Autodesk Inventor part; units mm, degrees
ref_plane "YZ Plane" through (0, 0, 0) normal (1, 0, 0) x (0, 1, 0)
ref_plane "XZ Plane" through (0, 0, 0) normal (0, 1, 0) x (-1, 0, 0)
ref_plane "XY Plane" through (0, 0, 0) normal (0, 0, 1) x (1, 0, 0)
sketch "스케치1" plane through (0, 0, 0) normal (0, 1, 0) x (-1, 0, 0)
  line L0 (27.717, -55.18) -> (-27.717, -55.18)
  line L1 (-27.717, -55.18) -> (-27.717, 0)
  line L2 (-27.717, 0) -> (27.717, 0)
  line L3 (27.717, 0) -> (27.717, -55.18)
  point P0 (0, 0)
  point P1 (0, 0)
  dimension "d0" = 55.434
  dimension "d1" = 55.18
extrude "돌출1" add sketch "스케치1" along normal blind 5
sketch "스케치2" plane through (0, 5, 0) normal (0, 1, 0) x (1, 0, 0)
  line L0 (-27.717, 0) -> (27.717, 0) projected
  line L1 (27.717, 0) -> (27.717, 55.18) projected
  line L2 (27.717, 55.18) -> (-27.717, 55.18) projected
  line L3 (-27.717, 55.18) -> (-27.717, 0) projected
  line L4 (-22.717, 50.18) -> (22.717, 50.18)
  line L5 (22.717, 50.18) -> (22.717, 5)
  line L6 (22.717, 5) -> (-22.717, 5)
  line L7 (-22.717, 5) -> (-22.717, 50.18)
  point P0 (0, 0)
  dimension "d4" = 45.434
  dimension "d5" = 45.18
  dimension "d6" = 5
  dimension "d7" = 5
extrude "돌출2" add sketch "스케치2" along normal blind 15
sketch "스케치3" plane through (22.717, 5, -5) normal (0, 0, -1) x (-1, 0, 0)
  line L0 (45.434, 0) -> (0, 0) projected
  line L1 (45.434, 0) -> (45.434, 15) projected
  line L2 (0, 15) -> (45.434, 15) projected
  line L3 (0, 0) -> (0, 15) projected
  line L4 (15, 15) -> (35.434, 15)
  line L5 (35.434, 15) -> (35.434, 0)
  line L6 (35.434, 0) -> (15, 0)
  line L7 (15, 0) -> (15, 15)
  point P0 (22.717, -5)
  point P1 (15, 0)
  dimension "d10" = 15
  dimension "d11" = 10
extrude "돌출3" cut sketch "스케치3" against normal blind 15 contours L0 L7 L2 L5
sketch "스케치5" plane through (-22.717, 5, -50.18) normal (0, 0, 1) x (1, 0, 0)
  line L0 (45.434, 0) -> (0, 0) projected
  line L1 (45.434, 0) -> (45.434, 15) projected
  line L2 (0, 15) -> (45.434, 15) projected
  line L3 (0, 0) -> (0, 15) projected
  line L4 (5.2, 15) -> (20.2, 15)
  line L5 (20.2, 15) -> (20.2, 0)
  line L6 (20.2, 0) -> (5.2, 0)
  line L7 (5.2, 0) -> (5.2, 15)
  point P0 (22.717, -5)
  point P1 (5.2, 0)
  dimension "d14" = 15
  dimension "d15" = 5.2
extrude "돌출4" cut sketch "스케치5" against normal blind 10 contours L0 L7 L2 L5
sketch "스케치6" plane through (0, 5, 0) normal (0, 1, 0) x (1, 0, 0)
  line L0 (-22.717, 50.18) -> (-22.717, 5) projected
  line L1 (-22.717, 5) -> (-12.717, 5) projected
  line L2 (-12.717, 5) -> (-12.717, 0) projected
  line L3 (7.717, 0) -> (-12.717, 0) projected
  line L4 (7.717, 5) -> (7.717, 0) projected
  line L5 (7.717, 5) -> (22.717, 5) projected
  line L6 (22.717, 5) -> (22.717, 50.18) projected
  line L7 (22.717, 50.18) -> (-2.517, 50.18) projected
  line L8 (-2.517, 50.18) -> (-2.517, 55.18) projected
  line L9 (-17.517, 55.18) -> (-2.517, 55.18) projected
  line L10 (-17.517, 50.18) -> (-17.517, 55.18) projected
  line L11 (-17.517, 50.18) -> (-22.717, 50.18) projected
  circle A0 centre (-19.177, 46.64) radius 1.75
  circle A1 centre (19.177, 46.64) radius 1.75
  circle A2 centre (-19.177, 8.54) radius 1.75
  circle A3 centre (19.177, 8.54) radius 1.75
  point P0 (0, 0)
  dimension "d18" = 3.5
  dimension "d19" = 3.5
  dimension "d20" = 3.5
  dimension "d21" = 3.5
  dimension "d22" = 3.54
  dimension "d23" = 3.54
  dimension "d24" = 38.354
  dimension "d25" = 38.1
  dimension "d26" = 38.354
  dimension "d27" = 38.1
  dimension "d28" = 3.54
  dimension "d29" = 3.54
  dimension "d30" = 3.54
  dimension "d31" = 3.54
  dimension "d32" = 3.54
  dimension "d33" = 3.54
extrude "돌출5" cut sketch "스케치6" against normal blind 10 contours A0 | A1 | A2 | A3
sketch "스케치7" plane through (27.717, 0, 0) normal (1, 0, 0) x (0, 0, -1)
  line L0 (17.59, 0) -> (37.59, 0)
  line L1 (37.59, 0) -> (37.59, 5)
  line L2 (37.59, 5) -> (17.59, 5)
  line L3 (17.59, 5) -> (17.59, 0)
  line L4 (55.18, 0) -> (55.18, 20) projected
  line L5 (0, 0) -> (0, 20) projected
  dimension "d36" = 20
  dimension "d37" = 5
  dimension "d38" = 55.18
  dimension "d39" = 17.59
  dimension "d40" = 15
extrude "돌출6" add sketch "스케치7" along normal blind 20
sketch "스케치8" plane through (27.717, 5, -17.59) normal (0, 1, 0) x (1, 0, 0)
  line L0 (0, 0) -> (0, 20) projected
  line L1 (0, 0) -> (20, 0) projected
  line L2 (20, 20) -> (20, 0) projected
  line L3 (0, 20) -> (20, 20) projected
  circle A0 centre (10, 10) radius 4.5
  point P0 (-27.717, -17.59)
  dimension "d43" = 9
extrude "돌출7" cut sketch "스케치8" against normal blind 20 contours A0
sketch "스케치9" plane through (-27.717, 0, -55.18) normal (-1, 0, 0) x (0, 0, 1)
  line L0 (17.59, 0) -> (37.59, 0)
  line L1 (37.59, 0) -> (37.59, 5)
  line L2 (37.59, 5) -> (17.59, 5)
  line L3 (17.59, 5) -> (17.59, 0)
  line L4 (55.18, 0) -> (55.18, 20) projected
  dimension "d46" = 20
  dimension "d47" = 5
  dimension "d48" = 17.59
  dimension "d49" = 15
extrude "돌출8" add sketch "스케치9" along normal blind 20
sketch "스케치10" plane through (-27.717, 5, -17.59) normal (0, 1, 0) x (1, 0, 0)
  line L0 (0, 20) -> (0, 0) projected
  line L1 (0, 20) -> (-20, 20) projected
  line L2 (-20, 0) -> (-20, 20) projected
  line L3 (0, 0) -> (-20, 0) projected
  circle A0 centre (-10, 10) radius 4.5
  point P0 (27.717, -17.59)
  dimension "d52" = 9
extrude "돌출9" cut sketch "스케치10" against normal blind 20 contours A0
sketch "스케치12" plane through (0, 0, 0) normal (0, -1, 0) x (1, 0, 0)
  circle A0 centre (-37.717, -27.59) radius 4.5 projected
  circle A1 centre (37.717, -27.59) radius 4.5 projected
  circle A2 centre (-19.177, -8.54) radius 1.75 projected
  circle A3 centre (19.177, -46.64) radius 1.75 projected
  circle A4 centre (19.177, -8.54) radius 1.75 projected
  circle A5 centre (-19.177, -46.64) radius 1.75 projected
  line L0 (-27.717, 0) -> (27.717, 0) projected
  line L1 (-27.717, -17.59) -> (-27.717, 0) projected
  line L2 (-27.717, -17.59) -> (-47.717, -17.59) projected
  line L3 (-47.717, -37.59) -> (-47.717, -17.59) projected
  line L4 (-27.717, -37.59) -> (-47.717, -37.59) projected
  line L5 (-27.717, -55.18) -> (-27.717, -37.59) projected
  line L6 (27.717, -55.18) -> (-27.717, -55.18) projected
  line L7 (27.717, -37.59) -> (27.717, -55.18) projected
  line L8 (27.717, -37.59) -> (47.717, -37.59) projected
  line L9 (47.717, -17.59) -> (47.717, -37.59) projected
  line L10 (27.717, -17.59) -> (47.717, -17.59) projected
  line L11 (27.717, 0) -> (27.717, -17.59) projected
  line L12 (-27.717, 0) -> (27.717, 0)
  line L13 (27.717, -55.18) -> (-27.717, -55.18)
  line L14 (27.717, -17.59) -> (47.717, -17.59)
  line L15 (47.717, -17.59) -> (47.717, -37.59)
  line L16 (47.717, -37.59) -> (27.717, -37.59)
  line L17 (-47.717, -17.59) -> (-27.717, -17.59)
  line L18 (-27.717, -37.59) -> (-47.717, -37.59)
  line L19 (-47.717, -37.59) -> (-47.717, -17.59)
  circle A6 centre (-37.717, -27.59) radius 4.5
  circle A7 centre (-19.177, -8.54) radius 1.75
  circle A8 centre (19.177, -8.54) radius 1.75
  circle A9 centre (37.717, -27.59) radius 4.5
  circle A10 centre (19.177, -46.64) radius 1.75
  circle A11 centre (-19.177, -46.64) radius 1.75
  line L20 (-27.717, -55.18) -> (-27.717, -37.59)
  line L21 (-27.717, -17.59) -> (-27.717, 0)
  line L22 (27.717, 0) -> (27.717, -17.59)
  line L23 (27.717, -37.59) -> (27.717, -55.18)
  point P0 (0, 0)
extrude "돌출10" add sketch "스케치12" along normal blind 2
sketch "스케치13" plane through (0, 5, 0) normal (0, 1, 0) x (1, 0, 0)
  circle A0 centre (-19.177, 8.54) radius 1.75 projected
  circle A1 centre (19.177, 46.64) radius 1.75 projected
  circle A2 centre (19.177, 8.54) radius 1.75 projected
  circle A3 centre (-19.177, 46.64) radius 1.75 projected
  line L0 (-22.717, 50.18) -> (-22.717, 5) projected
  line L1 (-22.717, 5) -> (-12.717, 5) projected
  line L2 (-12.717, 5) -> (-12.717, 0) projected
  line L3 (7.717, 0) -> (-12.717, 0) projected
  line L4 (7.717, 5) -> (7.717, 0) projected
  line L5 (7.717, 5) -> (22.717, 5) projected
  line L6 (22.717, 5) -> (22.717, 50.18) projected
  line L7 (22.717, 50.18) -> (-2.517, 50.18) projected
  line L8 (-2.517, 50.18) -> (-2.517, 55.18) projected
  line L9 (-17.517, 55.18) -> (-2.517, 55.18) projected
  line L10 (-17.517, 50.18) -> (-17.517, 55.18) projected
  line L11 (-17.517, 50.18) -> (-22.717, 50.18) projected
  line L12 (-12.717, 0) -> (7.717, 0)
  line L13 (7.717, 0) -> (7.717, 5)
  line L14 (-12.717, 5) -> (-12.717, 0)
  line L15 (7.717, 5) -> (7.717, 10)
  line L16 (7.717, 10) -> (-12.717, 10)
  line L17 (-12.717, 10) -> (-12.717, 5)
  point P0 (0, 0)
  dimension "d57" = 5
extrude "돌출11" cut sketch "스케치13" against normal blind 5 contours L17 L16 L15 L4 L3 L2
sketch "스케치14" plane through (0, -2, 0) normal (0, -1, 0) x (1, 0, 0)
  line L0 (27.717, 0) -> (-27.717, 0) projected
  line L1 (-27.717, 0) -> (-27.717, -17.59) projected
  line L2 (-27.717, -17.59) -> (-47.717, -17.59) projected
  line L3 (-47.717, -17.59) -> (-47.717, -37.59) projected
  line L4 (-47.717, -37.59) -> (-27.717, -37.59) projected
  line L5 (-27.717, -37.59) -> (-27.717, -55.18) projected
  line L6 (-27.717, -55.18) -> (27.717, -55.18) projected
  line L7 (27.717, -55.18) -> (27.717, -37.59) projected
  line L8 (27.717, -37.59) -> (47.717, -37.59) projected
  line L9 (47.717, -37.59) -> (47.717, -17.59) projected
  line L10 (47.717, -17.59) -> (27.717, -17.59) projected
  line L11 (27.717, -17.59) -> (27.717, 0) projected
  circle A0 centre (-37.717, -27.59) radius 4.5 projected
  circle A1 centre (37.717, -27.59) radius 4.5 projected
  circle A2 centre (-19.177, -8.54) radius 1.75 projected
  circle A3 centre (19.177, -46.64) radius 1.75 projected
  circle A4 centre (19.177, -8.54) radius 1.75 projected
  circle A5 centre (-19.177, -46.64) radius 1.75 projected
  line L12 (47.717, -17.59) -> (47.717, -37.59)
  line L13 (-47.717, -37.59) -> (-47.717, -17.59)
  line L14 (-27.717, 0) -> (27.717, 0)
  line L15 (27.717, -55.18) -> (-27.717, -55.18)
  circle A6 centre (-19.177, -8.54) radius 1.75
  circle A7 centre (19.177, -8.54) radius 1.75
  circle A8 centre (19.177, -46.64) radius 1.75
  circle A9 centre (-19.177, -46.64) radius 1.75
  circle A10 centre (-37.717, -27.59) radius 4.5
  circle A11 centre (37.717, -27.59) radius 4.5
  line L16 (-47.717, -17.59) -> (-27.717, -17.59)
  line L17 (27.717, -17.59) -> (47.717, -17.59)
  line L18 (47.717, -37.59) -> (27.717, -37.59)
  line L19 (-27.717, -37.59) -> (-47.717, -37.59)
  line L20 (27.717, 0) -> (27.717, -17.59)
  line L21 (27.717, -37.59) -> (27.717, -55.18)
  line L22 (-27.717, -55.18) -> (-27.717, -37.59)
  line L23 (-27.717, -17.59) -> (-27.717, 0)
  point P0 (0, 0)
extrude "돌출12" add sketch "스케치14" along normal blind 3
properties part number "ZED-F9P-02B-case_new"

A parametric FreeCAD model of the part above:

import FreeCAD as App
import Part
import Sketcher

V = App.Vector
Q = App.Units.Quantity

doc = App.newDocument("Part")
body = doc.addObject("PartDesign::Body", "Body")

# Sketch on XZ plane
sketch1 = body.newObject("Sketcher::SketchObject", "Sketch")
sketch1.AttachmentSupport = (doc.getObject("XZ_Plane"), [""])
sketch1.MapMode = "FlatFace"
sketch1.addGeometry([
    Part.LineSegment(V(27.717, -55.18, 0), V(-27.717, -55.18, 0)),
    Part.LineSegment(V(-27.717, -55.18, 0), V(-27.717, 0, 0)),
    Part.LineSegment(V(-27.717, 0, 0), V(27.717, 0, 0)),
    Part.LineSegment(V(27.717, 0, 0), V(27.717, -55.18, 0)),
], False)
sketch1.addConstraint([
    Sketcher.Constraint("Coincident", 0, 2, 1, 1),
    Sketcher.Constraint("Coincident", 1, 2, 2, 1),
    Sketcher.Constraint("Coincident", 2, 2, 3, 1),
    Sketcher.Constraint("Coincident", 3, 2, 0, 1),
    Sketcher.Constraint("Horizontal", 0),
    Sketcher.Constraint("Vertical", 1),
    Sketcher.Constraint("Horizontal", 2),
    Sketcher.Constraint("Vertical", 3),
    Sketcher.Constraint("Symmetric", 1, 2, 2, 2, -1, 1),
    Sketcher.Constraint("DistanceY", 1, 1, 1, 2, Q("55.18 mm")),
    Sketcher.Constraint("DistanceX", 0, 2, 0, 1, Q("55.434 mm")),
])
pad1 = body.newObject("PartDesign::Pad", "Pad")
pad1.Profile = sketch1
pad1.Length = 5
pad1.Reversed = True

# Sketch on XZ plane
sketch2 = body.newObject("Sketcher::SketchObject", "Sketch001")
sketch2.AttachmentSupport = (doc.getObject("XZ_Plane"), [""])
sketch2.MapMode = "FlatFace"
sketch2.AttachmentOffset = App.Placement(V(0, 0, -5), App.Rotation())
sketch2.addGeometry([
    Part.LineSegment(V(-27.717, -55.18, 0), V(-27.717, 0, 0)),  # 0
    Part.LineSegment(V(-27.717, 0, 0), V(27.717, 0, 0)),  # 1
    Part.LineSegment(V(27.717, 0, 0), V(27.717, -55.18, 0)),  # 2
    Part.LineSegment(V(27.717, -55.18, 0), V(-27.717, -55.18, 0)),  # 3
    Part.LineSegment(V(-22.717, -5, 0), V(-22.717, -50.18, 0)),  # 4
    Part.LineSegment(V(-22.717, -50.18, 0), V(22.717, -50.18, 0)),  # 5
    Part.LineSegment(V(22.717, -50.18, 0), V(22.717, -5, 0)),  # 6
    Part.LineSegment(V(22.717, -5, 0), V(-22.717, -5, 0)),  # 7
], False)
sketch2.addConstraint([
    Sketcher.Constraint("Coincident", 0, 2, 1, 1),
    Sketcher.Constraint("Coincident", 1, 2, 2, 1),
    Sketcher.Constraint("Coincident", 2, 2, 3, 1),
    Sketcher.Constraint("Coincident", 3, 2, 0, 1),
    Sketcher.Constraint("Coincident", 4, 2, 5, 1),
    Sketcher.Constraint("Coincident", 5, 2, 6, 1),
    Sketcher.Constraint("Coincident", 6, 2, 7, 1),
    Sketcher.Constraint("Coincident", 7, 2, 4, 1),
    Sketcher.Constraint("Vertical", 0),
    Sketcher.Constraint("Horizontal", 1),
    Sketcher.Constraint("Vertical", 2),
    Sketcher.Constraint("Horizontal", 3),
    Sketcher.Constraint("Vertical", 4),
    Sketcher.Constraint("Horizontal", 5),
    Sketcher.Constraint("Vertical", 6),
    Sketcher.Constraint("Horizontal", 7),
    Sketcher.Constraint("Symmetric", 0, 2, 1, 2, -1, 1),
    Sketcher.Constraint("DistanceY", 6, 2, -1, 1, Q("5 mm")),
    Sketcher.Constraint("DistanceX", 3, 2, 4, 2, Q("5 mm")),
    Sketcher.Constraint("DistanceY", 3, 2, 4, 2, Q("5 mm")),
    Sketcher.Constraint("DistanceX", 5, 2, 2, 2, Q("5 mm")),
    Sketcher.Constraint("DistanceY", 4, 2, 4, 1, Q("45.18 mm")),
    Sketcher.Constraint("DistanceX", 5, 1, 5, 2, Q("45.434 mm")),
])
pad2 = body.newObject("PartDesign::Pad", "Pad001")
pad2.Profile = sketch2
pad2.Length = 15
pad2.Reversed = True

# Sketch on XY plane
sketch3 = body.newObject("Sketcher::SketchObject", "Sketch002")
sketch3.AttachmentSupport = (doc.getObject("XY_Plane"), [""])
sketch3.MapMode = "FlatFace"
sketch3.AttachmentOffset = App.Placement(V(0, 0, -5), App.Rotation())
sketch3.addGeometry([
    Part.LineSegment(V(7.717, 5, 0), V(-12.717, 5, 0)),
    Part.LineSegment(V(-12.717, 5, 0), V(-12.717, 20, 0)),
    Part.LineSegment(V(-12.717, 20, 0), V(7.717, 20, 0)),
    Part.LineSegment(V(7.717, 20, 0), V(7.717, 5, 0)),
], False)
sketch3.addConstraint([
    Sketcher.Constraint("Coincident", 0, 2, 1, 1),
    Sketcher.Constraint("Coincident", 1, 2, 2, 1),
    Sketcher.Constraint("Coincident", 2, 2, 3, 1),
    Sketcher.Constraint("Coincident", 3, 2, 0, 1),
    Sketcher.Constraint("Horizontal", 0),
    Sketcher.Constraint("Vertical", 1),
    Sketcher.Constraint("Horizontal", 2),
    Sketcher.Constraint("Vertical", 3),
    Sketcher.Constraint("DistanceY", 1, 1, 1, 2, Q("15 mm")),
    Sketcher.Constraint("DistanceY", -1, 1, 0, 2, Q("5 mm")),
    Sketcher.Constraint("DistanceX", 0, 2, 0, 1, Q("20.434 mm")),
    Sketcher.Constraint("DistanceX", 0, 2, -1, 1, Q("12.717 mm")),
])
pocket1 = body.newObject("PartDesign::Pocket", "Pocket")
pocket1.Profile = sketch3
pocket1.Length = 15
pocket1.Reversed = True

# Sketch on XY plane
sketch4 = body.newObject("Sketcher::SketchObject", "Sketch003")
sketch4.AttachmentSupport = (doc.getObject("XY_Plane"), [""])
sketch4.MapMode = "FlatFace"
sketch4.AttachmentOffset = App.Placement(V(0, 0, -50.18), App.Rotation())
sketch4.addGeometry([
    Part.LineSegment(V(-17.517, 5, 0), V(-2.517, 5, 0)),
    Part.LineSegment(V(-2.517, 5, 0), V(-2.517, 20, 0)),
    Part.LineSegment(V(-2.517, 20, 0), V(-17.517, 20, 0)),
    Part.LineSegment(V(-17.517, 20, 0), V(-17.517, 5, 0)),
], False)
sketch4.addConstraint([
    Sketcher.Constraint("Coincident", 0, 2, 1, 1),
    Sketcher.Constraint("Coincident", 1, 2, 2, 1),
    Sketcher.Constraint("Coincident", 2, 2, 3, 1),
    Sketcher.Constraint("Coincident", 3, 2, 0, 1),
    Sketcher.Constraint("Horizontal", 0),
    Sketcher.Constraint("Vertical", 1),
    Sketcher.Constraint("Horizontal", 2),
    Sketcher.Constraint("Vertical", 3),
    Sketcher.Constraint("Equal", 2, 1),
    Sketcher.Constraint("DistanceX", 0, 1, 0, 2, Q("15 mm")),
    Sketcher.Constraint("DistanceY", -1, 1, 0, 2, Q("5 mm")),
    Sketcher.Constraint("DistanceX", 0, 2, -1, 1, Q("2.517 mm")),
])
pocket2 = body.newObject("PartDesign::Pocket", "Pocket001")
pocket2.Profile = sketch4
pocket2.Length = 10

# Sketch on XZ plane
sketch5 = body.newObject("Sketcher::SketchObject", "Sketch004")
sketch5.AttachmentSupport = (doc.getObject("XZ_Plane"), [""])
sketch5.MapMode = "FlatFace"
sketch5.AttachmentOffset = App.Placement(V(0, 0, -5), App.Rotation())
sketch5.addGeometry([
    Part.Circle(V(-19.177, -46.64, 0), V(0, 0, 1), 1.75),
    Part.Circle(V(19.177, -46.64, 0), V(0, 0, 1), 1.75),
    Part.Circle(V(-19.177, -8.54, 0), V(0, 0, 1), 1.75),
    Part.Circle(V(19.177, -8.54, 0), V(0, 0, 1), 1.75),
], False)
sketch5.addConstraint([
    Sketcher.Constraint("Equal", 0, 1),
    Sketcher.Constraint("Equal", 1, 2),
    Sketcher.Constraint("Equal", 2, 3),
    Sketcher.Constraint("Symmetric", 0, 3, 1, 3, -2),
    Sketcher.Constraint("Symmetric", 2, 3, 3, 3, -2),
    Sketcher.Constraint("Vertical", 0, 3, 2, 3),
    Sketcher.Constraint("Diameter", 0, Q("3.5 mm")),
    Sketcher.Constraint("DistanceY", 0, 3, 2, 3, Q("38.1 mm")),
    Sketcher.Constraint("DistanceX", 0, 3, 1, 3, Q("38.354 mm")),
    Sketcher.Constraint("DistanceY", 0, 3, -1, 1, Q("46.64 mm")),
])
pocket3 = body.newObject("PartDesign::Pocket", "Pocket002")
pocket3.Profile = sketch5
pocket3.Length = 10
pocket3.Reversed = True

# Sketch on YZ plane
sketch6 = body.newObject("Sketcher::SketchObject", "Sketch005")
sketch6.AttachmentSupport = (doc.getObject("YZ_Plane"), [""])
sketch6.MapMode = "FlatFace"
sketch6.AttachmentOffset = App.Placement(V(0, 0, 27.717), App.Rotation())
sketch6.addGeometry([
    Part.LineSegment(V(5, -17.59, 0), V(0, -17.59, 0)),
    Part.LineSegment(V(0, -17.59, 0), V(0, -37.59, 0)),
    Part.LineSegment(V(0, -37.59, 0), V(5, -37.59, 0)),
    Part.LineSegment(V(5, -37.59, 0), V(5, -17.59, 0)),
], False)
sketch6.addConstraint([
    Sketcher.Constraint("Coincident", 0, 2, 1, 1),
    Sketcher.Constraint("Coincident", 1, 2, 2, 1),
    Sketcher.Constraint("Coincident", 2, 2, 3, 1),
    Sketcher.Constraint("Coincident", 3, 2, 0, 1),
    Sketcher.Constraint("Horizontal", 0),
    Sketcher.Constraint("Vertical", 1),
    Sketcher.Constraint("Horizontal", 2),
    Sketcher.Constraint("Vertical", 3),
    Sketcher.Constraint("PointOnObject", 0, 2, -2),
    Sketcher.Constraint("DistanceX", 0, 2, 0, 1, Q("5 mm")),
    Sketcher.Constraint("DistanceY", 1, 2, 1, 1, Q("20 mm")),
    Sketcher.Constraint("DistanceY", 0, 2, -1, 1, Q("17.59 mm")),
])
pad3 = body.newObject("PartDesign::Pad", "Pad002")
pad3.Profile = sketch6
pad3.Length = 20

# Sketch on XZ plane
sketch7 = body.newObject("Sketcher::SketchObject", "Sketch006")
sketch7.AttachmentSupport = (doc.getObject("XZ_Plane"), [""])
sketch7.MapMode = "FlatFace"
sketch7.AttachmentOffset = App.Placement(V(0, 0, -5), App.Rotation())
sketch7.addGeometry(Part.Circle(V(37.717, -27.59, 0), V(0, 0, 1), 4.5), False)
sketch7.addConstraint([
    Sketcher.Constraint("Diameter", 0, Q("9 mm")),
    Sketcher.Constraint("DistanceY", 0, 3, -1, 1, Q("27.59 mm")),
    Sketcher.Constraint("DistanceX", -1, 1, 0, 3, Q("37.717 mm")),
])
pocket4 = body.newObject("PartDesign::Pocket", "Pocket003")
pocket4.Profile = sketch7
pocket4.Length = 20
pocket4.Reversed = True

# Sketch on YZ plane
sketch8 = body.newObject("Sketcher::SketchObject", "Sketch007")
sketch8.AttachmentSupport = (doc.getObject("YZ_Plane"), [""])
sketch8.MapMode = "FlatFace"
sketch8.AttachmentOffset = App.Placement(V(0, 0, -27.717), App.Rotation())
sketch8.addGeometry([
    Part.LineSegment(V(5, -37.59, 0), V(0, -37.59, 0)),
    Part.LineSegment(V(0, -37.59, 0), V(0, -17.59, 0)),
    Part.LineSegment(V(0, -17.59, 0), V(5, -17.59, 0)),
    Part.LineSegment(V(5, -17.59, 0), V(5, -37.59, 0)),
], False)
sketch8.addConstraint([
    Sketcher.Constraint("Coincident", 0, 2, 1, 1),
    Sketcher.Constraint("Coincident", 1, 2, 2, 1),
    Sketcher.Constraint("Coincident", 2, 2, 3, 1),
    Sketcher.Constraint("Coincident", 3, 2, 0, 1),
    Sketcher.Constraint("Horizontal", 0),
    Sketcher.Constraint("Vertical", 1),
    Sketcher.Constraint("Horizontal", 2),
    Sketcher.Constraint("Vertical", 3),
    Sketcher.Constraint("PointOnObject", 0, 2, -2),
    Sketcher.Constraint("DistanceX", 0, 2, 0, 1, Q("5 mm")),
    Sketcher.Constraint("DistanceY", 1, 1, 1, 2, Q("20 mm")),
    Sketcher.Constraint("DistanceY", 1, 2, -1, 1, Q("17.59 mm")),
])
pad4 = body.newObject("PartDesign::Pad", "Pad003")
pad4.Profile = sketch8
pad4.Length = 20
pad4.Reversed = True

# Sketch on XZ plane
sketch9 = body.newObject("Sketcher::SketchObject", "Sketch008")
sketch9.AttachmentSupport = (doc.getObject("XZ_Plane"), [""])
sketch9.MapMode = "FlatFace"
sketch9.AttachmentOffset = App.Placement(V(0, 0, -5), App.Rotation())
sketch9.addGeometry(Part.Circle(V(-37.717, -27.59, 0), V(0, 0, 1), 4.5), False)
sketch9.addConstraint([
    Sketcher.Constraint("Diameter", 0, Q("9 mm")),
    Sketcher.Constraint("DistanceY", 0, 3, -1, 1, Q("27.59 mm")),
    Sketcher.Constraint("DistanceX", 0, 3, -1, 1, Q("37.717 mm")),
])
pocket5 = body.newObject("PartDesign::Pocket", "Pocket004")
pocket5.Profile = sketch9
pocket5.Length = 20
pocket5.Reversed = True

# Sketch on XZ plane
sketch10 = body.newObject("Sketcher::SketchObject", "Sketch009")
sketch10.AttachmentSupport = (doc.getObject("XZ_Plane"), [""])
sketch10.MapMode = "FlatFace"
sketch10.addGeometry([
    Part.LineSegment(V(27.717, 0, 0), V(-27.717, 0, 0)),  # 0
    Part.LineSegment(V(-27.717, 0, 0), V(-27.717, -17.59, 0)),  # 1
    Part.LineSegment(V(-27.717, -17.59, 0), V(-47.717, -17.59, 0)),  # 2
    Part.LineSegment(V(-47.717, -17.59, 0), V(-47.717, -37.59, 0)),  # 3
    Part.LineSegment(V(-47.717, -37.59, 0), V(-27.717, -37.59, 0)),  # 4
    Part.LineSegment(V(-27.717, -37.59, 0), V(-27.717, -55.18, 0)),  # 5
    Part.LineSegment(V(-27.717, -55.18, 0), V(27.717, -55.18, 0)),  # 6
    Part.LineSegment(V(27.717, -55.18, 0), V(27.717, -37.59, 0)),  # 7
    Part.LineSegment(V(27.717, -37.59, 0), V(47.717, -37.59, 0)),  # 8
    Part.LineSegment(V(47.717, -37.59, 0), V(47.717, -17.59, 0)),  # 9
    Part.LineSegment(V(47.717, -17.59, 0), V(27.717, -17.59, 0)),  # 10
    Part.LineSegment(V(27.717, -17.59, 0), V(27.717, 0, 0)),  # 11
    Part.Circle(V(-19.177, -46.64, 0), V(0, 0, 1), 1.75),  # 12
    Part.Circle(V(-37.717, -27.59, 0), V(0, 0, 1), 4.5),  # 13
    Part.Circle(V(19.177, -46.64, 0), V(0, 0, 1), 1.75),  # 14
    Part.Circle(V(37.717, -27.59, 0), V(0, 0, 1), 4.5),  # 15
    Part.Circle(V(-19.177, -8.54, 0), V(0, 0, 1), 1.75),  # 16
    Part.Circle(V(19.177, -8.54, 0), V(0, 0, 1), 1.75),  # 17
], False)
sketch10.addConstraint([
    Sketcher.Constraint("Coincident", 0, 2, 1, 1),
    Sketcher.Constraint("Coincident", 1, 2, 2, 1),
    Sketcher.Constraint("Coincident", 2, 2, 3, 1),
    Sketcher.Constraint("Coincident", 3, 2, 4, 1),
    Sketcher.Constraint("Coincident", 4, 2, 5, 1),
    Sketcher.Constraint("Coincident", 5, 2, 6, 1),
    Sketcher.Constraint("Coincident", 6, 2, 7, 1),
    Sketcher.Constraint("Coincident", 7, 2, 8, 1),
    Sketcher.Constraint("Coincident", 8, 2, 9, 1),
    Sketcher.Constraint("Coincident", 9, 2, 10, 1),
    Sketcher.Constraint("Coincident", 10, 2, 11, 1),
    Sketcher.Constraint("Coincident", 11, 2, 0, 1),
    Sketcher.Constraint("Horizontal", 0),
    Sketcher.Constraint("Vertical", 1),
    Sketcher.Constraint("Horizontal", 2),
    Sketcher.Constraint("Vertical", 3),
    Sketcher.Constraint("Horizontal", 4),
    Sketcher.Constraint("Vertical", 5),
    Sketcher.Constraint("Horizontal", 6),
    Sketcher.Constraint("Vertical", 7),
    Sketcher.Constraint("Horizontal", 8),
    Sketcher.Constraint("Vertical", 9),
    Sketcher.Constraint("Horizontal", 10),
    Sketcher.Constraint("Vertical", 11),
    Sketcher.Constraint("Equal", 12, 14),
    Sketcher.Constraint("Equal", 13, 15),
    Sketcher.Constraint("Equal", 14, 16),
    Sketcher.Constraint("Equal", 16, 17),
    Sketcher.Constraint("Symmetric", 0, 2, 11, 2, -1, 1),
    Sketcher.Constraint("Symmetric", 12, 3, 14, 3, -2),
    Sketcher.Constraint("Symmetric", 13, 3, 15, 3, -2),
    Sketcher.Constraint("Symmetric", 16, 3, 17, 3, -2),
    Sketcher.Constraint("Symmetric", 4, 2, 7, 2, -2),
    Sketcher.Constraint("Symmetric", 2, 2, 9, 2, -2),
    Sketcher.Constraint("Vertical", 12, 3, 16, 3),
    Sketcher.Constraint("Vertical", 1, 2, 4, 2),
    Sketcher.Constraint("Equal", 10, 3),
    Sketcher.Constraint("Equal", 1, 5),
    Sketcher.Constraint("Diameter", 13, Q("9 mm")),
    Sketcher.Constraint("Diameter", 12, Q("3.5 mm")),
    Sketcher.Constraint("DistanceX", 2, 2, 2, 1, Q("20 mm")),
    Sketcher.Constraint("DistanceX", 13, 3, 0, 2, Q("10 mm")),
    Sketcher.Constraint("DistanceY", 13, 3, 1, 2, Q("10 mm")),
    Sketcher.Constraint("DistanceY", 1, 2, 1, 1, Q("17.59 mm")),
    Sketcher.Constraint("DistanceY", 12, 3, 16, 3, Q("38.1 mm")),
    Sketcher.Constraint("DistanceX", 0, 2, 0, 1, Q("55.434 mm")),
    Sketcher.Constraint("DistanceY", 12, 3, -1, 1, Q("46.64 mm")),
    Sketcher.Constraint("DistanceX", 13, 3, 12, 3, Q("18.54 mm")),
])
pad5 = body.newObject("PartDesign::Pad", "Pad004")
pad5.Profile = sketch10
pad5.Length = 2

# Sketch on XZ plane
sketch11 = body.newObject("Sketcher::SketchObject", "Sketch010")
sketch11.AttachmentSupport = (doc.getObject("XZ_Plane"), [""])
sketch11.MapMode = "FlatFace"
sketch11.AttachmentOffset = App.Placement(V(0, 0, -5), App.Rotation())
sketch11.addGeometry([
    Part.LineSegment(V(-12.717, -10, 0), V(-12.717, 0, 0)),
    Part.LineSegment(V(-12.717, 0, 0), V(7.717, 0, 0)),
    Part.LineSegment(V(7.717, 0, 0), V(7.717, -10, 0)),
    Part.LineSegment(V(7.717, -10, 0), V(-12.717, -10, 0)),
], False)
sketch11.addConstraint([
    Sketcher.Constraint("Coincident", 0, 2, 1, 1),
    Sketcher.Constraint("Coincident", 1, 2, 2, 1),
    Sketcher.Constraint("Coincident", 2, 2, 3, 1),
    Sketcher.Constraint("Coincident", 3, 2, 0, 1),
    Sketcher.Constraint("Vertical", 0),
    Sketcher.Constraint("Horizontal", 1),
    Sketcher.Constraint("Vertical", 2),
    Sketcher.Constraint("Horizontal", 3),
    Sketcher.Constraint("PointOnObject", 0, 2, -1),
    Sketcher.Constraint("DistanceY", 0, 1, 0, 2, Q("10 mm")),
    Sketcher.Constraint("DistanceX", 1, 1, 1, 2, Q("20.434 mm")),
    Sketcher.Constraint("DistanceX", 0, 2, -1, 1, Q("12.717 mm")),
])
pocket6 = body.newObject("PartDesign::Pocket", "Pocket005")
pocket6.Profile = sketch11
pocket6.Length = 5
pocket6.Reversed = True

# Sketch on XZ plane
sketch12 = body.newObject("Sketcher::SketchObject", "Sketch011")
sketch12.AttachmentSupport = (doc.getObject("XZ_Plane"), [""])
sketch12.MapMode = "FlatFace"
sketch12.AttachmentOffset = App.Placement(V(0, 0, 2), App.Rotation())
sketch12.addGeometry([
    Part.LineSegment(V(27.717, -17.59, 0), V(27.717, 0, 0)),  # 0
    Part.LineSegment(V(27.717, 0, 0), V(-27.717, 0, 0)),  # 1
    Part.LineSegment(V(-27.717, 0, 0), V(-27.717, -17.59, 0)),  # 2
    Part.LineSegment(V(-27.717, -17.59, 0), V(-47.717, -17.59, 0)),  # 3
    Part.LineSegment(V(-47.717, -17.59, 0), V(-47.717, -37.59, 0)),  # 4
    Part.LineSegment(V(-47.717, -37.59, 0), V(-27.717, -37.59, 0)),  # 5
    Part.LineSegment(V(-27.717, -37.59, 0), V(-27.717, -55.18, 0)),  # 6
    Part.LineSegment(V(-27.717, -55.18, 0), V(27.717, -55.18, 0)),  # 7
    Part.LineSegment(V(27.717, -55.18, 0), V(27.717, -37.59, 0)),  # 8
    Part.LineSegment(V(27.717, -37.59, 0), V(47.717, -37.59, 0)),  # 9
    Part.LineSegment(V(47.717, -37.59, 0), V(47.717, -17.59, 0)),  # 10
    Part.LineSegment(V(47.717, -17.59, 0), V(27.717, -17.59, 0)),  # 11
    Part.Circle(V(-19.177, -46.64, 0), V(0, 0, 1), 1.75),  # 12
    Part.Circle(V(-37.717, -27.59, 0), V(0, 0, 1), 4.5),  # 13
    Part.Circle(V(19.177, -46.64, 0), V(0, 0, 1), 1.75),  # 14
    Part.Circle(V(37.717, -27.59, 0), V(0, 0, 1), 4.5),  # 15
    Part.Circle(V(-19.177, -8.54, 0), V(0, 0, 1), 1.75),  # 16
    Part.Circle(V(19.177, -8.54, 0), V(0, 0, 1), 1.75),  # 17
], False)
sketch12.addConstraint([
    Sketcher.Constraint("Coincident", 0, 2, 1, 1),
    Sketcher.Constraint("Coincident", 1, 2, 2, 1),
    Sketcher.Constraint("Coincident", 2, 2, 3, 1),
    Sketcher.Constraint("Coincident", 3, 2, 4, 1),
    Sketcher.Constraint("Coincident", 4, 2, 5, 1),
    Sketcher.Constraint("Coincident", 5, 2, 6, 1),
    Sketcher.Constraint("Coincident", 6, 2, 7, 1),
    Sketcher.Constraint("Coincident", 7, 2, 8, 1),
    Sketcher.Constraint("Coincident", 8, 2, 9, 1),
    Sketcher.Constraint("Coincident", 9, 2, 10, 1),
    Sketcher.Constraint("Coincident", 10, 2, 11, 1),
    Sketcher.Constraint("Coincident", 11, 2, 0, 1),
    Sketcher.Constraint("Vertical", 0),
    Sketcher.Constraint("Horizontal", 1),
    Sketcher.Constraint("Vertical", 2),
    Sketcher.Constraint("Horizontal", 3),
    Sketcher.Constraint("Vertical", 4),
    Sketcher.Constraint("Horizontal", 5),
    Sketcher.Constraint("Vertical", 6),
    Sketcher.Constraint("Horizontal", 7),
    Sketcher.Constraint("Vertical", 8),
    Sketcher.Constraint("Horizontal", 9),
    Sketcher.Constraint("Vertical", 10),
    Sketcher.Constraint("Horizontal", 11),
    Sketcher.Constraint("Equal", 12, 14),
    Sketcher.Constraint("Equal", 13, 15),
    Sketcher.Constraint("Equal", 14, 16),
    Sketcher.Constraint("Equal", 16, 17),
    Sketcher.Constraint("Symmetric", 0, 2, 1, 2, -1, 1),
    Sketcher.Constraint("Symmetric", 12, 3, 14, 3, -2),
    Sketcher.Constraint("Symmetric", 13, 3, 15, 3, -2),
    Sketcher.Constraint("Symmetric", 16, 3, 17, 3, -2),
    Sketcher.Constraint("Symmetric", 5, 2, 8, 2, -2),
    Sketcher.Constraint("Symmetric", 3, 2, 10, 2, -2),
    Sketcher.Constraint("Vertical", 12, 3, 16, 3),
    Sketcher.Constraint("Vertical", 2, 2, 5, 2),
    Sketcher.Constraint("Equal", 11, 4),
    Sketcher.Constraint("Equal", 2, 6),
    Sketcher.Constraint("Diameter", 13, Q("9 mm")),
    Sketcher.Constraint("Diameter", 12, Q("3.5 mm")),
    Sketcher.Constraint("DistanceX", 3, 2, 3, 1, Q("20 mm")),
    Sketcher.Constraint("DistanceX", 0, 2, 15, 3, Q("10 mm")),
    Sketcher.Constraint("DistanceY", 13, 3, 2, 2, Q("10 mm")),
    Sketcher.Constraint("DistanceY", 0, 1, 0, 2, Q("17.59 mm")),
    Sketcher.Constraint("DistanceY", 12, 3, 16, 3, Q("38.1 mm")),
    Sketcher.Constraint("DistanceX", 1, 2, 1, 1, Q("55.434 mm")),
    Sketcher.Constraint("DistanceY", 12, 3, -1, 1, Q("46.64 mm")),
    Sketcher.Constraint("DistanceX", 13, 3, 12, 3, Q("18.54 mm")),
])
pad6 = body.newObject("PartDesign::Pad", "Pad005")
pad6.Profile = sketch12
pad6.Length = 3

doc.recompute()
